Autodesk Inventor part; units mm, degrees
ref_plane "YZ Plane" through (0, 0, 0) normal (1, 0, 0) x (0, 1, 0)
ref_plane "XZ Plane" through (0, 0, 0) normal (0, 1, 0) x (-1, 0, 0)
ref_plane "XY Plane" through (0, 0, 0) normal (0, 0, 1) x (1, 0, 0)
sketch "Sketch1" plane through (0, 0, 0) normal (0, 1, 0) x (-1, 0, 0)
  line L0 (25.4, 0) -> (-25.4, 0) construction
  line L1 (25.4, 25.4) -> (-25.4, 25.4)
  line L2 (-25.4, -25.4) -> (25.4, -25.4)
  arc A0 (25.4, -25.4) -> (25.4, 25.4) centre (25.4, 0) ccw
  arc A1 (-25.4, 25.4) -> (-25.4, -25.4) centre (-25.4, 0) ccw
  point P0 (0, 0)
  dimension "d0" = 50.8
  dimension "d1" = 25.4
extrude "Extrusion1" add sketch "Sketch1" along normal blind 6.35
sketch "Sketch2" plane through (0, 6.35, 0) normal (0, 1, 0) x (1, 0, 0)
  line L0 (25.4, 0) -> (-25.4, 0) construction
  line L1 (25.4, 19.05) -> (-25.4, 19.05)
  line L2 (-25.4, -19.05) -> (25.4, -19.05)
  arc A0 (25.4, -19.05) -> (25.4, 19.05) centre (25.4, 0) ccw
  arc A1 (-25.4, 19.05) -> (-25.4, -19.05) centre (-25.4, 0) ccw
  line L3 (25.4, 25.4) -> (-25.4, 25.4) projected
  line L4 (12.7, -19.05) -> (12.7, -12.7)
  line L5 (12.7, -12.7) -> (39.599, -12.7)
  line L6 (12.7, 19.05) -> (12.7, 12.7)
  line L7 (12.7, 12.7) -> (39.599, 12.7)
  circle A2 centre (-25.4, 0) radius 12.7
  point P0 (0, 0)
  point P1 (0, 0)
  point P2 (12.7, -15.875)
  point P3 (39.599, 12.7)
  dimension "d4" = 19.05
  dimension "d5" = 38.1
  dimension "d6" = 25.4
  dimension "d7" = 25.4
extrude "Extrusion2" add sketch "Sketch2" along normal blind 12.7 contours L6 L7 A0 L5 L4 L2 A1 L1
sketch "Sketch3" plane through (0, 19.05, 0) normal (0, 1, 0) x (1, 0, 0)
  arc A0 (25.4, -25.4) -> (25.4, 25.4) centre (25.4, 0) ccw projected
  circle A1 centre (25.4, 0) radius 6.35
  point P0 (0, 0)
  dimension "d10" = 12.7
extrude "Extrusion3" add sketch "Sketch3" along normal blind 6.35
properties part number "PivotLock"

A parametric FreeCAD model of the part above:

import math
import FreeCAD as App
import Part
import Sketcher
from FreeCAD import Vector
Q = App.Units.Quantity

doc = App.newDocument("Part")
body = doc.addObject("PartDesign::Body", "Body")

sketch1 = body.newObject("Sketcher::SketchObject", "Sketch")
sketch1.AttachmentSupport = (doc.getObject("XZ_Plane"), [""])
sketch1.MapMode = "FlatFace"
sketch1.addGeometry([
    Part.ArcOfCircle(Part.Circle(Vector(-25.4, 0, 0), Vector(0, 0, 1), 25.4), math.radians(90), math.radians(270)),
    Part.LineSegment(Vector(-25.4, 25.4, 0), Vector(25.4, 25.4, 0)),
    Part.ArcOfCircle(Part.Circle(Vector(25.4, 0, 0), Vector(0, 0, 1), 25.4), math.radians(-90), math.radians(90)),
    Part.LineSegment(Vector(25.4, -25.4, 0), Vector(-25.4, -25.4, 0)),
], False)
sketch1.addConstraint([
    Sketcher.Constraint("Tangent", 0, 1, 1, 1),
    Sketcher.Constraint("Tangent", 1, 2, 2, 2),
    Sketcher.Constraint("Tangent", 2, 1, 3, 1),
    Sketcher.Constraint("Tangent", 3, 2, 0, 2),
    Sketcher.Constraint("Horizontal", 1),
    Sketcher.Constraint("Horizontal", 3),
    Sketcher.Constraint("Symmetric", 0, 3, 2, 3, -1, 1),
    Sketcher.Constraint("Radius", 0, Q("1 in")),
    Sketcher.Constraint("DistanceX", 1, 1, 1, 2, Q("2 in")),
])
pad1 = body.newObject("PartDesign::Pad", "Pad")
pad1.Profile = sketch1
pad1.Length = Q("0.25 in")
pad1.Reversed = True

sketch2 = body.newObject("Sketcher::SketchObject", "Sketch001")
sketch2.AttachmentSupport = (doc.getObject("XZ_Plane"), [""])
sketch2.MapMode = "FlatFace"
sketch2.AttachmentOffset = App.Placement(Vector(0, 0, -0.25 * 25.4), App.Rotation())
sketch2.addGeometry([
    Part.LineSegment(Vector(12.7, -12.7, 0), Vector(12.7, -19.05, 0)),
    Part.LineSegment(Vector(12.7, -19.05, 0), Vector(-25.4, -19.05, 0)),
    Part.ArcOfCircle(Part.Circle(Vector(-25.4, 0, 0), Vector(0, 0, 1), 19.05), math.radians(90), math.radians(270)),
    Part.LineSegment(Vector(-25.4, 19.05, 0), Vector(12.7, 19.05, 0)),
    Part.LineSegment(Vector(12.7, 19.05, 0), Vector(12.7, 12.7, 0)),
    Part.LineSegment(Vector(12.7, 12.7, 0), Vector(39.599, 12.7, 0)),
    Part.ArcOfCircle(Part.Circle(Vector(25.4, 0, 0), Vector(0, 0, 1), 19.05), math.radians(-41.810378), math.radians(41.810378)),
    Part.LineSegment(Vector(39.599, -12.7, 0), Vector(12.7, -12.7, 0)),
    Part.Circle(Vector(-25.4, 0, 0), Vector(0, 0, 1), 12.7),
], False)
sketch2.addConstraint([
    Sketcher.Constraint("Coincident", 0, 2, 1, 1),
    Sketcher.Constraint("Tangent", 1, 2, 2, 2),
    Sketcher.Constraint("Tangent", 2, 1, 3, 1),
    Sketcher.Constraint("Coincident", 3, 2, 4, 1),
    Sketcher.Constraint("Coincident", 4, 2, 5, 1),
    Sketcher.Constraint("Coincident", 5, 2, 6, 2),
    Sketcher.Constraint("Coincident", 6, 1, 7, 1),
    Sketcher.Constraint("Coincident", 7, 2, 0, 1),
    Sketcher.Constraint("Vertical", 0),
    Sketcher.Constraint("Horizontal", 1),
    Sketcher.Constraint("Horizontal", 3),
    Sketcher.Constraint("Vertical", 4),
    Sketcher.Constraint("Horizontal", 5),
    Sketcher.Constraint("Horizontal", 7),
    Sketcher.Constraint("Coincident", 8, 3, 2, 3),
    Sketcher.Constraint("Equal", 2, 6),
    Sketcher.Constraint("Symmetric", 2, 3, 6, 3, -1, 1),
    Sketcher.Constraint("Symmetric", 0, 2, 3, 2, -1),
    Sketcher.Constraint("Vertical", 5, 2, 6, 1),
    Sketcher.Constraint("Diameter", 8, Q("1 in")),
    Sketcher.Constraint("Radius", 2, Q("0.75 in")),
    Sketcher.Constraint("DistanceX", 1, 2, 1, 1, Q("1.5 in")),
    Sketcher.Constraint("DistanceX", 2, 3, -1, 1, Q("1 in")),
    Sketcher.Constraint("DistanceY", 6, 1, 5, 2, Q("1 in")),
])
pad2 = body.newObject("PartDesign::Pad", "Pad001")
pad2.Profile = sketch2
pad2.Length = Q("0.5 in")
pad2.Reversed = True

sketch3 = body.newObject("Sketcher::SketchObject", "Sketch002")
sketch3.AttachmentSupport = (doc.getObject("XZ_Plane"), [""])
sketch3.MapMode = "FlatFace"
sketch3.AttachmentOffset = App.Placement(Vector(0, 0, -0.75 * 25.4), App.Rotation())
sketch3.addGeometry(Part.Circle(Vector(25.4, 0, 0), Vector(0, 0, 1), 6.35), False)
sketch3.addConstraint([
    Sketcher.Constraint("PointOnObject", 0, 3, -1),
    Sketcher.Constraint("Diameter", 0, Q("0.5 in")),
    Sketcher.Constraint("DistanceX", -1, 1, 0, 3, Q("1 in")),
])
pad3 = body.newObject("PartDesign::Pad", "Pad002")
pad3.Profile = sketch3
pad3.Length = Q("0.25 in")
pad3.Reversed = True

doc.recompute()
